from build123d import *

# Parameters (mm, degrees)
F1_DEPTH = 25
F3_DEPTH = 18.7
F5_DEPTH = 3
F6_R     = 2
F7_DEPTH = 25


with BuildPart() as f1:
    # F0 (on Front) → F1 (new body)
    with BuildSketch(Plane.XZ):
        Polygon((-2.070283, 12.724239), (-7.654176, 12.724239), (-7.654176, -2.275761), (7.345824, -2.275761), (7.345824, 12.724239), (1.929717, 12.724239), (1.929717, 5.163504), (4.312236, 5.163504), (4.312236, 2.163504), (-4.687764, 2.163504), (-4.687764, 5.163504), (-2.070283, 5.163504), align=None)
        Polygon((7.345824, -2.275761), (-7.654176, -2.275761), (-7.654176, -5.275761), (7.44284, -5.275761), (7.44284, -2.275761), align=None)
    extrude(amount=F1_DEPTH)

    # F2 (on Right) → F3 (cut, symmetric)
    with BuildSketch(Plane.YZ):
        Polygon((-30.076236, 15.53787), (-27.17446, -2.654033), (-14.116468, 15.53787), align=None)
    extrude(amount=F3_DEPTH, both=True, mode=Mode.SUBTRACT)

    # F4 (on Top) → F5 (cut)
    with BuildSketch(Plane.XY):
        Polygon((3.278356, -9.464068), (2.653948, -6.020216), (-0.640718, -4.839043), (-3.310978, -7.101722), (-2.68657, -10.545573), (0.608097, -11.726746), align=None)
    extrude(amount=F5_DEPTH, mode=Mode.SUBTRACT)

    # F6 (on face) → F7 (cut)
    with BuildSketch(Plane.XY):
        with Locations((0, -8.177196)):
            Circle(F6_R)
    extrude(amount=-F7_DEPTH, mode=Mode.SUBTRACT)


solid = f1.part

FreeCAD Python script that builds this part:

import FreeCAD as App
import Part
import Sketcher
from FreeCAD import Vector


def add_polygon(sketch, points):
    """Adds a closed chain of lines whose ends are joined by coincident constraints."""
    first, n = sketch.GeometryCount, len(points)
    for a, b in zip(points, points[1:] + points[:1]):
        sketch.addGeometry(Part.LineSegment(App.Vector(*a, 0), App.Vector(*b, 0)), False)
    for i in range(n):
        sketch.addConstraint(Sketcher.Constraint("Coincident", first + i, 2, first + (i + 1) % n, 1))

doc = App.newDocument("Part")
body = doc.addObject("PartDesign::Body", "Body")

# Sketch on XZ plane
sketch1 = doc.addObject("Sketcher::SketchObject", "Sketch")
body.addObject(sketch1)
sketch1.AttachmentSupport = (doc.XZ_Plane, [""])
sketch1.MapMode = "FlatFace"
add_polygon(sketch1, [(-2.07, 12.72), (-7.65, 12.72), (-7.65, -5.28), (7.44, -5.28), (7.44, -2.28), (7.35, -2.28), (7.35, 12.72), (1.93, 12.72), (1.93, 5.16), (4.31, 5.16), (4.31, 2.16), (-4.69, 2.16), (-4.69, 5.16), (-2.07, 5.16)])  # lines 0-13
sketch1.addConstraint(Sketcher.Constraint("Horizontal", 0))
sketch1.addConstraint(Sketcher.Constraint("Vertical", 1))
sketch1.addConstraint(Sketcher.Constraint("Horizontal", 2))
sketch1.addConstraint(Sketcher.Constraint("Vertical", 3))
sketch1.addConstraint(Sketcher.Constraint("Horizontal", 4))
sketch1.addConstraint(Sketcher.Constraint("Vertical", 5))
sketch1.addConstraint(Sketcher.Constraint("Horizontal", 6))
sketch1.addConstraint(Sketcher.Constraint("Vertical", 7))
sketch1.addConstraint(Sketcher.Constraint("Horizontal", 8))
sketch1.addConstraint(Sketcher.Constraint("Vertical", 9))
sketch1.addConstraint(Sketcher.Constraint("Horizontal", 10))
sketch1.addConstraint(Sketcher.Constraint("Vertical", 11))
sketch1.addConstraint(Sketcher.Constraint("Horizontal", 12))
sketch1.addConstraint(Sketcher.Constraint("Vertical", 13))
sketch1.addConstraint(Sketcher.Constraint("Horizontal", 0, 2, 5, 2))
sketch1.addConstraint(Sketcher.Constraint("Horizontal", 8, 2, 11, 2))
sketch1.addConstraint(Sketcher.Constraint("Equal", 3, 9))
sketch1.addConstraint(Sketcher.Constraint("DistanceX", 10, 2, 10, 1, 9.0))
sketch1.addConstraint(Sketcher.Constraint("DistanceY", 1, 2, 1, 1, 18.0))
sketch1.addConstraint(Sketcher.Constraint("DistanceY", 3, 1, 3, 2, 3.0))
sketch1.addConstraint(Sketcher.Constraint("DistanceX", 1, 2, 4, 2, 15.0))
sketch1.addConstraint(Sketcher.Constraint("DistanceX", 12, 2, 7, 2, 4.0))
sketch1.addConstraint(Sketcher.Constraint("DistanceX", 8, 1, 8, 2, 2.382519))
sketch1.addConstraint(Sketcher.Constraint("DistanceX", 0, 2, 0, 1, 5.583893))
sketch1.addConstraint(Sketcher.Constraint("DistanceX", 2, 1, 2, 2, 15.097016))
sketch1.addConstraint(Sketcher.Constraint("DistanceY", 7, 2, 7, 1, 7.560735))
sketch1.addConstraint(Sketcher.Constraint("DistanceY", -1, 1, 0, 2, 12.724239))
sketch1.addConstraint(Sketcher.Constraint("DistanceX", -1, 1, 2, 2, 7.44284))
pad1 = doc.addObject("PartDesign::Pad", "Pad")
body.addObject(pad1)
pad1.Profile = sketch1
pad1.Length = 25

# Sketch on YZ plane
sketch2 = doc.addObject("Sketcher::SketchObject", "Sketch001")
body.addObject(sketch2)
sketch2.AttachmentSupport = (doc.YZ_Plane, [""])
sketch2.MapMode = "FlatFace"
add_polygon(sketch2, [(-30, 16), (-27, -3), (-14, 16)])  # lines 0-2
sketch2.addConstraint(Sketcher.Constraint("Horizontal", 2))
sketch2.addConstraint(Sketcher.Constraint("DistanceX", 2, 2, 2, 1, 15.959768))
sketch2.addConstraint(Sketcher.Constraint("Distance", 0, 18.421879))
sketch2.addConstraint(Sketcher.Constraint("DistanceX", 0, 2, -1, 1, 27.17446))
sketch2.addConstraint(Sketcher.Constraint("DistanceY", -1, 1, 1, 2, 15.53787))
sketch2.addConstraint(Sketcher.Constraint("Distance", 1, 22.393224))
pocket1 = doc.addObject("PartDesign::Pocket", "Pocket")
body.addObject(pocket1)
pocket1.Profile = sketch2
pocket1.Length = 37.4
pocket1.Midplane = True

# Sketch on XY plane
sketch3 = doc.addObject("Sketcher::SketchObject", "Sketch002")
body.addObject(sketch3)
sketch3.AttachmentSupport = (doc.XY_Plane, [""])
sketch3.MapMode = "FlatFace"
add_polygon(sketch3, [(3.3, -9.5), (2.7, -6), (-0.6, -4.8), (-3.3, -7.1), (-2.7, -10.5), (0.6, -11.7)])  # lines 0-5
sketch3.addConstraint(Sketcher.Constraint("Parallel", 0, 3))
sketch3.addConstraint(Sketcher.Constraint("Parallel", 1, 4))
sketch3.addConstraint(Sketcher.Constraint("Parallel", 2, 5))
sketch3.addConstraint(Sketcher.Constraint("Equal", 0, 1))
sketch3.addConstraint(Sketcher.Constraint("Equal", 1, 2))
sketch3.addConstraint(Sketcher.Constraint("Equal", 2, 3))
sketch3.addConstraint(Sketcher.Constraint("Distance", 0, 3.5))
sketch3.addConstraint(Sketcher.Constraint("DistanceX", -1, 1, 0, 2, 2.653948))
sketch3.addConstraint(Sketcher.Constraint("DistanceX", 1, 2, -1, 1, 0.640718))
sketch3.addConstraint(Sketcher.Constraint("DistanceX", 2, 2, -1, 1, 3.310978))
sketch3.addConstraint(Sketcher.Constraint("DistanceY", 2, 2, -1, 1, 7.101722))
sketch3.addConstraint(Sketcher.Constraint("DistanceX", 3, 2, -1, 1, 2.68657))
pocket2 = doc.addObject("PartDesign::Pocket", "Pocket001")
body.addObject(pocket2)
pocket2.Profile = sketch3
pocket2.Length = 3
pocket2.Reversed = True

# Sketch on XY plane
sketch4 = doc.addObject("Sketcher::SketchObject", "Sketch003")
body.addObject(sketch4)
sketch4.AttachmentSupport = (doc.XY_Plane, [""])
sketch4.MapMode = "FlatFace"
sketch4.addGeometry(Part.Circle(Vector(0, -8.2, 0), Vector(0, 0, 1), 2), False)
sketch4.addConstraint(Sketcher.Constraint("PointOnObject", 0, 3, -2))
sketch4.addConstraint(Sketcher.Constraint("Diameter", 0, 4.0))
sketch4.addConstraint(Sketcher.Constraint("DistanceY", 0, 3, -1, 1, 8.177196))
pocket3 = doc.addObject("PartDesign::Pocket", "Pocket002")
body.addObject(pocket3)
pocket3.Profile = sketch4
pocket3.Length = 25

doc.recompute()
